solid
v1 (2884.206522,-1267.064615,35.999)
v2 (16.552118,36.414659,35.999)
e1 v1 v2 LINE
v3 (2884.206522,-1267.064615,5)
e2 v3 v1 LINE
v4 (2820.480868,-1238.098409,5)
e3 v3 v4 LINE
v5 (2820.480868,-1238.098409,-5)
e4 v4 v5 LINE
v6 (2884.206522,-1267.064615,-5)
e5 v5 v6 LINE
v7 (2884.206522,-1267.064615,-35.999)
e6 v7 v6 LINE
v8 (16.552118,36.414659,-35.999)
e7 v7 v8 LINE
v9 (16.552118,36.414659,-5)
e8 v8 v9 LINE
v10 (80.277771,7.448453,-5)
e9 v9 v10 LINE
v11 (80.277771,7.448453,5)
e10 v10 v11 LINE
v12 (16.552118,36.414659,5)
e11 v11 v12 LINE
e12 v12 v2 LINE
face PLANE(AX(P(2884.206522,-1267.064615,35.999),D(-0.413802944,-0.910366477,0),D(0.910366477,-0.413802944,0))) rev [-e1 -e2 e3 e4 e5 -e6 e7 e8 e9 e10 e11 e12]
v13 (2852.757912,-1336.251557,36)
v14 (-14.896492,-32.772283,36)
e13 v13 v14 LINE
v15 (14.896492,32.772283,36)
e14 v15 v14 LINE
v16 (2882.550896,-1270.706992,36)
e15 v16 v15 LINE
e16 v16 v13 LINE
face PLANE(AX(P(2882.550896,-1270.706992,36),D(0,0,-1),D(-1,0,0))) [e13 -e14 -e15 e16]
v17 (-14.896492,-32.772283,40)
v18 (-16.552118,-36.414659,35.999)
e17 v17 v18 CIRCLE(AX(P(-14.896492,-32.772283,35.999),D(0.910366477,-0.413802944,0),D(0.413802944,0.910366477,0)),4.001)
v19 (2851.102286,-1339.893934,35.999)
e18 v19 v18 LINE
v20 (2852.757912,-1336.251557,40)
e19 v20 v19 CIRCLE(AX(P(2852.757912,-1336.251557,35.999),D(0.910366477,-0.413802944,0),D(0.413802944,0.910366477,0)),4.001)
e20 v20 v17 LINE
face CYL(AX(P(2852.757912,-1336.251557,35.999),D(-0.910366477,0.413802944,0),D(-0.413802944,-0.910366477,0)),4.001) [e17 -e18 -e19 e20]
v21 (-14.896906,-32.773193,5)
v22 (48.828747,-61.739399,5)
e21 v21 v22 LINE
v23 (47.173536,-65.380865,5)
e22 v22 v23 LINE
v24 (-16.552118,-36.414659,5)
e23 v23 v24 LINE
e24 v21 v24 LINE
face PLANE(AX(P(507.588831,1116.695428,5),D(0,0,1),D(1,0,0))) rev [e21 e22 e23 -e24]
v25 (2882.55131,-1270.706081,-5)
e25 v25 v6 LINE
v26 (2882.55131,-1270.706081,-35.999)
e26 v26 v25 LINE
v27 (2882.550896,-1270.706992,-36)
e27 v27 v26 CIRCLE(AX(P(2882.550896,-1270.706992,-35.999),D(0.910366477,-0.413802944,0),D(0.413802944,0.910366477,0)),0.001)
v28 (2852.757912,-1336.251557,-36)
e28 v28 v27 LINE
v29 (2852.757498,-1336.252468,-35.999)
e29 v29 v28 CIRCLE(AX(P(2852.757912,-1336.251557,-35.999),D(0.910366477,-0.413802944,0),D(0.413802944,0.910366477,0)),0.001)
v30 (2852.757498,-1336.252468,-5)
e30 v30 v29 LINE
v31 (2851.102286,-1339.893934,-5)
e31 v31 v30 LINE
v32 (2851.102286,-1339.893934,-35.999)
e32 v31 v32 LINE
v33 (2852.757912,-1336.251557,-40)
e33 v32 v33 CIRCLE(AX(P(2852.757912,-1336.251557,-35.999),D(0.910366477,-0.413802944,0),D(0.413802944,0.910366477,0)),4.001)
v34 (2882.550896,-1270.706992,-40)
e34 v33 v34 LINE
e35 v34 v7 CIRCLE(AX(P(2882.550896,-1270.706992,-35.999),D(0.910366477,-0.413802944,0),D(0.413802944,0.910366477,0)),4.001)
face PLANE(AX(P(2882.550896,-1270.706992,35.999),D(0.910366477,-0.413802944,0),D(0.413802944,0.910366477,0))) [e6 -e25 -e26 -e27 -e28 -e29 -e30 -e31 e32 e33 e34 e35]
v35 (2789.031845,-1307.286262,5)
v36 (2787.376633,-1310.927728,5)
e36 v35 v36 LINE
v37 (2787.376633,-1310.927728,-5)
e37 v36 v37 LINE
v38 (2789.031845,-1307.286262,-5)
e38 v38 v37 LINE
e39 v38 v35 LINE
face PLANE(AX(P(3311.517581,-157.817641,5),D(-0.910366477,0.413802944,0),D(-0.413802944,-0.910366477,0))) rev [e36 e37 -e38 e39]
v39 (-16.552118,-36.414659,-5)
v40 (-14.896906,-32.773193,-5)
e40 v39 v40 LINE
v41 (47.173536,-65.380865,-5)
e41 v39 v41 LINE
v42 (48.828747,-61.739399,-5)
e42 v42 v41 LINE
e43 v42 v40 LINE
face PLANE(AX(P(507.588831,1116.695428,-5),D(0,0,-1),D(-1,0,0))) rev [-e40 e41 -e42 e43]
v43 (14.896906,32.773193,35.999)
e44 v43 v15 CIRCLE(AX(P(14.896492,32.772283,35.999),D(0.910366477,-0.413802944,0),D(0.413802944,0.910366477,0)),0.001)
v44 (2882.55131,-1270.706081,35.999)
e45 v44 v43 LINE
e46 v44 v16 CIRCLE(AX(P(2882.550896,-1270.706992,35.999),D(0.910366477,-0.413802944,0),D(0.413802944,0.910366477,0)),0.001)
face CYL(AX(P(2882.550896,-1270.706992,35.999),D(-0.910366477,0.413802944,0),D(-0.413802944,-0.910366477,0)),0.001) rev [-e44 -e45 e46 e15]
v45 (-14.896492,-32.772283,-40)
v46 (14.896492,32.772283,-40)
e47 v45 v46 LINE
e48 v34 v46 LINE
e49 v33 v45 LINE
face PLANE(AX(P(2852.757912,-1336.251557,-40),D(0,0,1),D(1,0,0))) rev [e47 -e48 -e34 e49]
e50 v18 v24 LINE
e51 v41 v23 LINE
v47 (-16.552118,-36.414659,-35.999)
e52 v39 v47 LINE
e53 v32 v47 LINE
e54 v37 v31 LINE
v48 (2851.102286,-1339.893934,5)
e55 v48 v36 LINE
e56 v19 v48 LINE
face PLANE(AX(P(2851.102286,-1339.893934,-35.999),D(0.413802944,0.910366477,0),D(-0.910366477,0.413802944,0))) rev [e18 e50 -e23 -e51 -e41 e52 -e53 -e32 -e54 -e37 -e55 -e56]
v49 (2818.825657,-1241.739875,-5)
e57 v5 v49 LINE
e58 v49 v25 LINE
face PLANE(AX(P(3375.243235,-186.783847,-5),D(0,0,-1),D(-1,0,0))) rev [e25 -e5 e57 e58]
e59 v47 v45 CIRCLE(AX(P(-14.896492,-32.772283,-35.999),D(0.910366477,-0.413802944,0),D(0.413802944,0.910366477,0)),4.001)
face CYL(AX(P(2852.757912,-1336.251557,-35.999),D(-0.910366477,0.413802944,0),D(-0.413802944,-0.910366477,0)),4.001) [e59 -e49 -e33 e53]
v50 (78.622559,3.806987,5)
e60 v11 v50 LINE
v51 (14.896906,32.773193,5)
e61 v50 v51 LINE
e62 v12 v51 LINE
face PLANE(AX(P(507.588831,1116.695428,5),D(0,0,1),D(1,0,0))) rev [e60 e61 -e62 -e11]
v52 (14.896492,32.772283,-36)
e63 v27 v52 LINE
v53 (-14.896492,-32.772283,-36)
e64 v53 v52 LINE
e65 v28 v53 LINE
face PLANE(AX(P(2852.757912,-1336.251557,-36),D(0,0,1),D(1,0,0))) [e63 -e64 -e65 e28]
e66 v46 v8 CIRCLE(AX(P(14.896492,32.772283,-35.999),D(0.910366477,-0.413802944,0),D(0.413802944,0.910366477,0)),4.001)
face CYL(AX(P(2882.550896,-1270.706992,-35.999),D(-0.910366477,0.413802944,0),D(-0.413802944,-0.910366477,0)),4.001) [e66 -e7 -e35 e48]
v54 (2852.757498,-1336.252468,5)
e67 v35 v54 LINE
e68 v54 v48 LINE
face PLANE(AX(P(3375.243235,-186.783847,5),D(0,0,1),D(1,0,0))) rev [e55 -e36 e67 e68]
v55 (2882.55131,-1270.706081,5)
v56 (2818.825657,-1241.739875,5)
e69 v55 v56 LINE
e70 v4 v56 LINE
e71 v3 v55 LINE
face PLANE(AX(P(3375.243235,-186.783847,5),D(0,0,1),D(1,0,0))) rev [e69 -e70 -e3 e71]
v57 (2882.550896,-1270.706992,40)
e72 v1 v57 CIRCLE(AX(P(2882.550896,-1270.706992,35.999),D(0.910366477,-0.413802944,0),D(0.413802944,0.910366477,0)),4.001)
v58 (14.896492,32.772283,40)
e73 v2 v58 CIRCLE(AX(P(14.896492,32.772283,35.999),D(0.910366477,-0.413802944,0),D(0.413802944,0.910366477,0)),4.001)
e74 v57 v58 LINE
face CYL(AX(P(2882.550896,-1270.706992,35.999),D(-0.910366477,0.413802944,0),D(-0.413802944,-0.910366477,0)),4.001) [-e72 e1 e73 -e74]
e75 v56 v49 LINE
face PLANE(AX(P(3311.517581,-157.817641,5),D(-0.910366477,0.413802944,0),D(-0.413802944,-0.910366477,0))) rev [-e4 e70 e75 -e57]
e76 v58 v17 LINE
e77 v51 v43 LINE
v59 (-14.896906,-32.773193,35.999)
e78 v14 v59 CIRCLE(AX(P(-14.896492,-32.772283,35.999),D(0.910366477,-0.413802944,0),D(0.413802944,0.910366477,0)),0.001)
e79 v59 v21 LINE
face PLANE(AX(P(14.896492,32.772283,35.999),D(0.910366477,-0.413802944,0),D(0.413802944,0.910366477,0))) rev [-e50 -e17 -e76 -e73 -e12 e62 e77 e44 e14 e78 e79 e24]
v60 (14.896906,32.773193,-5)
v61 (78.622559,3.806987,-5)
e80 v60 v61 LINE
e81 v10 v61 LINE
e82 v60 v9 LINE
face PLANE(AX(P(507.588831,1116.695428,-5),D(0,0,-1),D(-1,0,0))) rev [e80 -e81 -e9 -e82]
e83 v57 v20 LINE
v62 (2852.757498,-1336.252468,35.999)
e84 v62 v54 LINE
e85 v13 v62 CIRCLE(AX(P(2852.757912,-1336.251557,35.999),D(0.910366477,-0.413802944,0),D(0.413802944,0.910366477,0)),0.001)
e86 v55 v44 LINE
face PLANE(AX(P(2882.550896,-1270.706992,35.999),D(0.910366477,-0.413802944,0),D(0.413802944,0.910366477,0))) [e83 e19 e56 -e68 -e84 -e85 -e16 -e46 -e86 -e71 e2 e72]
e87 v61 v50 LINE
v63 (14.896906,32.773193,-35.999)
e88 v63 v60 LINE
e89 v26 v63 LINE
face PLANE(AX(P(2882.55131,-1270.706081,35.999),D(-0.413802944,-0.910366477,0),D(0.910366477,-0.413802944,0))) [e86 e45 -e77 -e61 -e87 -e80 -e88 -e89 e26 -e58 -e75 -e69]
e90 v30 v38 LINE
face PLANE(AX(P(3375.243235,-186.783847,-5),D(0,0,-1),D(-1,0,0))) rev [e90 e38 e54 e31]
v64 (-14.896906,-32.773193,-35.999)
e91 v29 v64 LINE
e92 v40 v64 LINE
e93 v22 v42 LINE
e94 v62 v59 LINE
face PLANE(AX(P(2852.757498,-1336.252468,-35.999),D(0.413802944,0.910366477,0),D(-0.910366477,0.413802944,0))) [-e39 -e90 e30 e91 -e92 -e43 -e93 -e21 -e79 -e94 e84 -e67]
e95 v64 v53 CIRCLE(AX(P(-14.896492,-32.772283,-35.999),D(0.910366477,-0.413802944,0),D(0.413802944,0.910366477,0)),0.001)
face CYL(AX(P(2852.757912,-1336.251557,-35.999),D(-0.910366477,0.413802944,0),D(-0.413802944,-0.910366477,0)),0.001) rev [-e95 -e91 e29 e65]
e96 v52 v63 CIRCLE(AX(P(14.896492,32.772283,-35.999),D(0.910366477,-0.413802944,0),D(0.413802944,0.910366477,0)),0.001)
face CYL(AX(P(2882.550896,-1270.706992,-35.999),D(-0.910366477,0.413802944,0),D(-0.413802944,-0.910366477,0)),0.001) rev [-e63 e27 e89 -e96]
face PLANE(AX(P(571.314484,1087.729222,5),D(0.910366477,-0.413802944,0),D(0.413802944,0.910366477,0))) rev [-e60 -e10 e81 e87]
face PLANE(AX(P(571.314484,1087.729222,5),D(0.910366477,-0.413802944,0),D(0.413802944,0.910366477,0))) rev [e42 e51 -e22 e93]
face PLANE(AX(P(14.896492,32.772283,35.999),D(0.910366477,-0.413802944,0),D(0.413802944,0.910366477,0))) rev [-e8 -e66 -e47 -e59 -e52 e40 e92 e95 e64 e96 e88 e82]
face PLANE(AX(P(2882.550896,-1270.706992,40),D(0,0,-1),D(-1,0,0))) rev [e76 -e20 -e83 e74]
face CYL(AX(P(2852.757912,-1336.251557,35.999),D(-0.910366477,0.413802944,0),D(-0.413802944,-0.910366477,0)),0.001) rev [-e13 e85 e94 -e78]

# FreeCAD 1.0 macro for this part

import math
import FreeCAD as App
import Part
import Sketcher

V = App.Vector


def add_polygon(sketch, points):
    """Adds a closed chain of lines whose ends are joined by coincident constraints."""
    first, n = sketch.GeometryCount, len(points)
    for a, b in zip(points, points[1:] + points[:1]):
        sketch.addGeometry(Part.LineSegment(App.Vector(*a, 0), App.Vector(*b, 0)), False)
    for i in range(n):
        sketch.addConstraint(Sketcher.Constraint("Coincident", first + i, 2, first + (i + 1) % n, 1))

doc = App.newDocument("Part")
params = doc.addObject("Spreadsheet::Sheet", "Params")
for row, (alias, value) in enumerate([
    ("pad1_length", "3150 mm"),
    ("sketch2_width", "70 mm"),
    ("sketch2_height", "10 mm"),
], start=1):
    params.set(f"A{row}", alias)
    params.set(f"B{row}", "=" + value)
    params.setAlias(f"B{row}", alias)

body = doc.addObject("PartDesign::Body", "Body")

# Sketch on an angled plane
sketch1 = body.newObject("Sketcher::SketchObject", "Sketch")
sketch1.Placement = App.Placement(V(0, 0, 0), App.Rotation(V(0.413802944, 0.910366477, 0), V(0, 0, 0.999999999), V(0.910366477, -0.413802944, 0), "ZXY"))
sketch1.addGeometry([
    Part.LineSegment(V(-35.999, -40, 0), V(35.999, -40, 0)),  # 0
    Part.ArcOfCircle(Part.Circle(V(35.999, -35.999, 0), V(0, 0, 1), 4.001), math.radians(-90), math.radians(0)),  # 1
    Part.LineSegment(V(40, -35.999, 0), V(40, 35.999, 0)),  # 2
    Part.ArcOfCircle(Part.Circle(V(35.999, 35.999, 0), V(0, 0, 1), 4.001), math.radians(0), math.radians(90)),  # 3
    Part.LineSegment(V(35.999, 40, 0), V(-35.999, 40, 0)),  # 4
    Part.ArcOfCircle(Part.Circle(V(-35.999, 35.999, 0), V(0, 0, 1), 4.001), math.radians(90), math.radians(180)),  # 5
    Part.LineSegment(V(-40, 35.999, 0), V(-40, -35.999, 0)),  # 6
    Part.ArcOfCircle(Part.Circle(V(-35.999, -35.999, 0), V(0, 0, 1), 4.001), math.radians(180), math.radians(270)),  # 7
    Part.LineSegment(V(35.999, -36, 0), V(-35.999, -36, 0)),  # 8
    Part.ArcOfCircle(Part.Circle(V(-35.999, -35.999, 0), V(0, 0, 1), 0.001), math.radians(180), math.radians(270)),  # 9
    Part.LineSegment(V(-36, -35.999, 0), V(-36, 35.999, 0)),  # 10
    Part.ArcOfCircle(Part.Circle(V(-35.999, 35.999, 0), V(0, 0, 1), 0.001), math.radians(90), math.radians(180)),  # 11
    Part.LineSegment(V(-35.999, 36, 0), V(35.999, 36, 0)),  # 12
    Part.ArcOfCircle(Part.Circle(V(35.999, 35.999, 0), V(0, 0, 1), 0.001), math.radians(0), math.radians(90)),  # 13
    Part.LineSegment(V(36, 35.999, 0), V(36, -35.999, 0)),  # 14
    Part.ArcOfCircle(Part.Circle(V(35.999, -35.999, 0), V(0, 0, 1), 0.001), math.radians(-90), math.radians(0)),  # 15
], False)
sketch1.addConstraint([
    Sketcher.Constraint("Tangent", 0, 2, 1, 1),
    Sketcher.Constraint("Tangent", 1, 2, 2, 1),
    Sketcher.Constraint("Tangent", 2, 2, 3, 1),
    Sketcher.Constraint("Tangent", 3, 2, 4, 1),
    Sketcher.Constraint("Tangent", 4, 2, 5, 1),
    Sketcher.Constraint("Tangent", 5, 2, 6, 1),
    Sketcher.Constraint("Tangent", 6, 2, 7, 1),
    Sketcher.Constraint("Tangent", 7, 2, 0, 1),
    Sketcher.Constraint("Tangent", 8, 2, 9, 2),
    Sketcher.Constraint("Tangent", 9, 1, 10, 1),
    Sketcher.Constraint("Tangent", 10, 2, 11, 2),
    Sketcher.Constraint("Tangent", 11, 1, 12, 1),
    Sketcher.Constraint("Tangent", 12, 2, 13, 2),
    Sketcher.Constraint("Tangent", 13, 1, 14, 1),
    Sketcher.Constraint("Tangent", 14, 2, 15, 2),
    Sketcher.Constraint("Tangent", 15, 1, 8, 1),
    Sketcher.Constraint("Horizontal", 0),
    Sketcher.Constraint("Vertical", 2),
    Sketcher.Constraint("Horizontal", 4),
    Sketcher.Constraint("Vertical", 6),
    Sketcher.Constraint("Horizontal", 8),
    Sketcher.Constraint("Vertical", 10),
    Sketcher.Constraint("Horizontal", 12),
    Sketcher.Constraint("Vertical", 14),
    Sketcher.Constraint("Coincident", 9, 3, 7, 3),
    Sketcher.Constraint("Coincident", 11, 3, 5, 3),
    Sketcher.Constraint("Coincident", 13, 3, 3, 3),
    Sketcher.Constraint("Equal", 1, 3),
    Sketcher.Constraint("Equal", 3, 5),
    Sketcher.Constraint("Equal", 5, 7),
    Sketcher.Constraint("Equal", 13, 15),
    Sketcher.Constraint("Symmetric", 1, 3, 5, 3, -1, 1),
    Sketcher.Constraint("Equal", 12, 2),
    Sketcher.Constraint("DistanceY", 0, 2, -1, 1, 40.0),
    Sketcher.Constraint("DistanceY", 8, 2, -1, 1, 36.0),
    Sketcher.Constraint("Radius", 1, 4.001),
])
pad1 = body.newObject("PartDesign::Pad", "Pad")
pad1.Profile = sketch1
pad1.setExpression("Length", "Params.pad1_length")

# Sketch on an angled plane
sketch2 = body.newObject("Sketcher::SketchObject", "Sketch001")
sketch2.Placement = App.Placement(V(-16.552118, -36.414659, 0), App.Rotation(V(0.910366477, -0.413802944, 0), V(0, 0, 0.999999999), V(-0.413802944, -0.910366477, 0), "ZXY"))
add_polygon(sketch2, [(0, 5), (0, -5), (70, -5), (70, 5)])  # lines 0-3
add_polygon(sketch2, [(3080, 5), (3080, -5), (3150, -5), (3150, 5)])  # lines 4-7
sketch2.addConstraint([
    Sketcher.Constraint("Vertical", 0),
    Sketcher.Constraint("Horizontal", 1),
    Sketcher.Constraint("Vertical", 2),
    Sketcher.Constraint("Horizontal", 3),
    Sketcher.Constraint("Vertical", 4),
    Sketcher.Constraint("Horizontal", 5),
    Sketcher.Constraint("Vertical", 6),
    Sketcher.Constraint("Horizontal", 7),
    Sketcher.Constraint("Symmetric", 0, 2, 3, 2, -1, 1),
    Sketcher.Constraint("Horizontal", 1, 2, 4, 2),
    Sketcher.Constraint("Horizontal", 3, 2, 6, 2),
    Sketcher.Constraint("Equal", 3, 5),
    Sketcher.Constraint("DistanceX", 1, 1, 1, 2, 70.0),
    Sketcher.Constraint("DistanceY", 0, 2, 0, 1, 10.0),
    Sketcher.Constraint("DistanceX", -1, 1, 4, 2, 3079.999997),
])
sketch2.setExpression("Constraints[20]", "Params.sketch2_width")
sketch2.setExpression("Constraints[21]", "Params.sketch2_height")
pocket1 = body.newObject("PartDesign::Pocket", "Pocket")
pocket1.Profile = sketch2
pocket1.Type = "ThroughAll"

doc.recompute()
